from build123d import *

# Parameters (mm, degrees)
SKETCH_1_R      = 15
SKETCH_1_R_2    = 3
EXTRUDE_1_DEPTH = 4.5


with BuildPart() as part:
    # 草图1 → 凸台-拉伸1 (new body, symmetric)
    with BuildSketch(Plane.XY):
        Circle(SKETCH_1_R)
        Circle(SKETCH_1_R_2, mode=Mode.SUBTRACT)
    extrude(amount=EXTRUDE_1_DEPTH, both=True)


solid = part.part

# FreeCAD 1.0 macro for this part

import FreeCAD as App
import Part
import Sketcher
from FreeCAD import Vector
Q = App.Units.Quantity

doc = App.newDocument("Part")
body = doc.addObject("PartDesign::Body", "Body")

# Sketch on XY plane
sketch1 = body.newObject("Sketcher::SketchObject", "Sketch")
sketch1.AttachmentSupport = (doc.getObject("XY_Plane"), [""])
sketch1.MapMode = "FlatFace"
sketch1.addGeometry(Part.Circle(Vector(0, 0, 0), Vector(0, 0, 1), 15), False)
sketch1.addGeometry(Part.Circle(Vector(0, 0, 0), Vector(0, 0, 1), 3), False)
sketch1.addConstraint(Sketcher.Constraint("Coincident", 0, 3, -1, 1))
sketch1.addConstraint(Sketcher.Constraint("Coincident", 1, 3, -1, 1))
sketch1.addConstraint(Sketcher.Constraint("Diameter", 0, Q("30 mm")))
sketch1.addConstraint(Sketcher.Constraint("Diameter", 1, Q("6 mm")))
pad1 = body.newObject("PartDesign::Pad", "Pad")
pad1.Profile = sketch1
pad1.Length = 9
pad1.Midplane = True

doc.recompute()
